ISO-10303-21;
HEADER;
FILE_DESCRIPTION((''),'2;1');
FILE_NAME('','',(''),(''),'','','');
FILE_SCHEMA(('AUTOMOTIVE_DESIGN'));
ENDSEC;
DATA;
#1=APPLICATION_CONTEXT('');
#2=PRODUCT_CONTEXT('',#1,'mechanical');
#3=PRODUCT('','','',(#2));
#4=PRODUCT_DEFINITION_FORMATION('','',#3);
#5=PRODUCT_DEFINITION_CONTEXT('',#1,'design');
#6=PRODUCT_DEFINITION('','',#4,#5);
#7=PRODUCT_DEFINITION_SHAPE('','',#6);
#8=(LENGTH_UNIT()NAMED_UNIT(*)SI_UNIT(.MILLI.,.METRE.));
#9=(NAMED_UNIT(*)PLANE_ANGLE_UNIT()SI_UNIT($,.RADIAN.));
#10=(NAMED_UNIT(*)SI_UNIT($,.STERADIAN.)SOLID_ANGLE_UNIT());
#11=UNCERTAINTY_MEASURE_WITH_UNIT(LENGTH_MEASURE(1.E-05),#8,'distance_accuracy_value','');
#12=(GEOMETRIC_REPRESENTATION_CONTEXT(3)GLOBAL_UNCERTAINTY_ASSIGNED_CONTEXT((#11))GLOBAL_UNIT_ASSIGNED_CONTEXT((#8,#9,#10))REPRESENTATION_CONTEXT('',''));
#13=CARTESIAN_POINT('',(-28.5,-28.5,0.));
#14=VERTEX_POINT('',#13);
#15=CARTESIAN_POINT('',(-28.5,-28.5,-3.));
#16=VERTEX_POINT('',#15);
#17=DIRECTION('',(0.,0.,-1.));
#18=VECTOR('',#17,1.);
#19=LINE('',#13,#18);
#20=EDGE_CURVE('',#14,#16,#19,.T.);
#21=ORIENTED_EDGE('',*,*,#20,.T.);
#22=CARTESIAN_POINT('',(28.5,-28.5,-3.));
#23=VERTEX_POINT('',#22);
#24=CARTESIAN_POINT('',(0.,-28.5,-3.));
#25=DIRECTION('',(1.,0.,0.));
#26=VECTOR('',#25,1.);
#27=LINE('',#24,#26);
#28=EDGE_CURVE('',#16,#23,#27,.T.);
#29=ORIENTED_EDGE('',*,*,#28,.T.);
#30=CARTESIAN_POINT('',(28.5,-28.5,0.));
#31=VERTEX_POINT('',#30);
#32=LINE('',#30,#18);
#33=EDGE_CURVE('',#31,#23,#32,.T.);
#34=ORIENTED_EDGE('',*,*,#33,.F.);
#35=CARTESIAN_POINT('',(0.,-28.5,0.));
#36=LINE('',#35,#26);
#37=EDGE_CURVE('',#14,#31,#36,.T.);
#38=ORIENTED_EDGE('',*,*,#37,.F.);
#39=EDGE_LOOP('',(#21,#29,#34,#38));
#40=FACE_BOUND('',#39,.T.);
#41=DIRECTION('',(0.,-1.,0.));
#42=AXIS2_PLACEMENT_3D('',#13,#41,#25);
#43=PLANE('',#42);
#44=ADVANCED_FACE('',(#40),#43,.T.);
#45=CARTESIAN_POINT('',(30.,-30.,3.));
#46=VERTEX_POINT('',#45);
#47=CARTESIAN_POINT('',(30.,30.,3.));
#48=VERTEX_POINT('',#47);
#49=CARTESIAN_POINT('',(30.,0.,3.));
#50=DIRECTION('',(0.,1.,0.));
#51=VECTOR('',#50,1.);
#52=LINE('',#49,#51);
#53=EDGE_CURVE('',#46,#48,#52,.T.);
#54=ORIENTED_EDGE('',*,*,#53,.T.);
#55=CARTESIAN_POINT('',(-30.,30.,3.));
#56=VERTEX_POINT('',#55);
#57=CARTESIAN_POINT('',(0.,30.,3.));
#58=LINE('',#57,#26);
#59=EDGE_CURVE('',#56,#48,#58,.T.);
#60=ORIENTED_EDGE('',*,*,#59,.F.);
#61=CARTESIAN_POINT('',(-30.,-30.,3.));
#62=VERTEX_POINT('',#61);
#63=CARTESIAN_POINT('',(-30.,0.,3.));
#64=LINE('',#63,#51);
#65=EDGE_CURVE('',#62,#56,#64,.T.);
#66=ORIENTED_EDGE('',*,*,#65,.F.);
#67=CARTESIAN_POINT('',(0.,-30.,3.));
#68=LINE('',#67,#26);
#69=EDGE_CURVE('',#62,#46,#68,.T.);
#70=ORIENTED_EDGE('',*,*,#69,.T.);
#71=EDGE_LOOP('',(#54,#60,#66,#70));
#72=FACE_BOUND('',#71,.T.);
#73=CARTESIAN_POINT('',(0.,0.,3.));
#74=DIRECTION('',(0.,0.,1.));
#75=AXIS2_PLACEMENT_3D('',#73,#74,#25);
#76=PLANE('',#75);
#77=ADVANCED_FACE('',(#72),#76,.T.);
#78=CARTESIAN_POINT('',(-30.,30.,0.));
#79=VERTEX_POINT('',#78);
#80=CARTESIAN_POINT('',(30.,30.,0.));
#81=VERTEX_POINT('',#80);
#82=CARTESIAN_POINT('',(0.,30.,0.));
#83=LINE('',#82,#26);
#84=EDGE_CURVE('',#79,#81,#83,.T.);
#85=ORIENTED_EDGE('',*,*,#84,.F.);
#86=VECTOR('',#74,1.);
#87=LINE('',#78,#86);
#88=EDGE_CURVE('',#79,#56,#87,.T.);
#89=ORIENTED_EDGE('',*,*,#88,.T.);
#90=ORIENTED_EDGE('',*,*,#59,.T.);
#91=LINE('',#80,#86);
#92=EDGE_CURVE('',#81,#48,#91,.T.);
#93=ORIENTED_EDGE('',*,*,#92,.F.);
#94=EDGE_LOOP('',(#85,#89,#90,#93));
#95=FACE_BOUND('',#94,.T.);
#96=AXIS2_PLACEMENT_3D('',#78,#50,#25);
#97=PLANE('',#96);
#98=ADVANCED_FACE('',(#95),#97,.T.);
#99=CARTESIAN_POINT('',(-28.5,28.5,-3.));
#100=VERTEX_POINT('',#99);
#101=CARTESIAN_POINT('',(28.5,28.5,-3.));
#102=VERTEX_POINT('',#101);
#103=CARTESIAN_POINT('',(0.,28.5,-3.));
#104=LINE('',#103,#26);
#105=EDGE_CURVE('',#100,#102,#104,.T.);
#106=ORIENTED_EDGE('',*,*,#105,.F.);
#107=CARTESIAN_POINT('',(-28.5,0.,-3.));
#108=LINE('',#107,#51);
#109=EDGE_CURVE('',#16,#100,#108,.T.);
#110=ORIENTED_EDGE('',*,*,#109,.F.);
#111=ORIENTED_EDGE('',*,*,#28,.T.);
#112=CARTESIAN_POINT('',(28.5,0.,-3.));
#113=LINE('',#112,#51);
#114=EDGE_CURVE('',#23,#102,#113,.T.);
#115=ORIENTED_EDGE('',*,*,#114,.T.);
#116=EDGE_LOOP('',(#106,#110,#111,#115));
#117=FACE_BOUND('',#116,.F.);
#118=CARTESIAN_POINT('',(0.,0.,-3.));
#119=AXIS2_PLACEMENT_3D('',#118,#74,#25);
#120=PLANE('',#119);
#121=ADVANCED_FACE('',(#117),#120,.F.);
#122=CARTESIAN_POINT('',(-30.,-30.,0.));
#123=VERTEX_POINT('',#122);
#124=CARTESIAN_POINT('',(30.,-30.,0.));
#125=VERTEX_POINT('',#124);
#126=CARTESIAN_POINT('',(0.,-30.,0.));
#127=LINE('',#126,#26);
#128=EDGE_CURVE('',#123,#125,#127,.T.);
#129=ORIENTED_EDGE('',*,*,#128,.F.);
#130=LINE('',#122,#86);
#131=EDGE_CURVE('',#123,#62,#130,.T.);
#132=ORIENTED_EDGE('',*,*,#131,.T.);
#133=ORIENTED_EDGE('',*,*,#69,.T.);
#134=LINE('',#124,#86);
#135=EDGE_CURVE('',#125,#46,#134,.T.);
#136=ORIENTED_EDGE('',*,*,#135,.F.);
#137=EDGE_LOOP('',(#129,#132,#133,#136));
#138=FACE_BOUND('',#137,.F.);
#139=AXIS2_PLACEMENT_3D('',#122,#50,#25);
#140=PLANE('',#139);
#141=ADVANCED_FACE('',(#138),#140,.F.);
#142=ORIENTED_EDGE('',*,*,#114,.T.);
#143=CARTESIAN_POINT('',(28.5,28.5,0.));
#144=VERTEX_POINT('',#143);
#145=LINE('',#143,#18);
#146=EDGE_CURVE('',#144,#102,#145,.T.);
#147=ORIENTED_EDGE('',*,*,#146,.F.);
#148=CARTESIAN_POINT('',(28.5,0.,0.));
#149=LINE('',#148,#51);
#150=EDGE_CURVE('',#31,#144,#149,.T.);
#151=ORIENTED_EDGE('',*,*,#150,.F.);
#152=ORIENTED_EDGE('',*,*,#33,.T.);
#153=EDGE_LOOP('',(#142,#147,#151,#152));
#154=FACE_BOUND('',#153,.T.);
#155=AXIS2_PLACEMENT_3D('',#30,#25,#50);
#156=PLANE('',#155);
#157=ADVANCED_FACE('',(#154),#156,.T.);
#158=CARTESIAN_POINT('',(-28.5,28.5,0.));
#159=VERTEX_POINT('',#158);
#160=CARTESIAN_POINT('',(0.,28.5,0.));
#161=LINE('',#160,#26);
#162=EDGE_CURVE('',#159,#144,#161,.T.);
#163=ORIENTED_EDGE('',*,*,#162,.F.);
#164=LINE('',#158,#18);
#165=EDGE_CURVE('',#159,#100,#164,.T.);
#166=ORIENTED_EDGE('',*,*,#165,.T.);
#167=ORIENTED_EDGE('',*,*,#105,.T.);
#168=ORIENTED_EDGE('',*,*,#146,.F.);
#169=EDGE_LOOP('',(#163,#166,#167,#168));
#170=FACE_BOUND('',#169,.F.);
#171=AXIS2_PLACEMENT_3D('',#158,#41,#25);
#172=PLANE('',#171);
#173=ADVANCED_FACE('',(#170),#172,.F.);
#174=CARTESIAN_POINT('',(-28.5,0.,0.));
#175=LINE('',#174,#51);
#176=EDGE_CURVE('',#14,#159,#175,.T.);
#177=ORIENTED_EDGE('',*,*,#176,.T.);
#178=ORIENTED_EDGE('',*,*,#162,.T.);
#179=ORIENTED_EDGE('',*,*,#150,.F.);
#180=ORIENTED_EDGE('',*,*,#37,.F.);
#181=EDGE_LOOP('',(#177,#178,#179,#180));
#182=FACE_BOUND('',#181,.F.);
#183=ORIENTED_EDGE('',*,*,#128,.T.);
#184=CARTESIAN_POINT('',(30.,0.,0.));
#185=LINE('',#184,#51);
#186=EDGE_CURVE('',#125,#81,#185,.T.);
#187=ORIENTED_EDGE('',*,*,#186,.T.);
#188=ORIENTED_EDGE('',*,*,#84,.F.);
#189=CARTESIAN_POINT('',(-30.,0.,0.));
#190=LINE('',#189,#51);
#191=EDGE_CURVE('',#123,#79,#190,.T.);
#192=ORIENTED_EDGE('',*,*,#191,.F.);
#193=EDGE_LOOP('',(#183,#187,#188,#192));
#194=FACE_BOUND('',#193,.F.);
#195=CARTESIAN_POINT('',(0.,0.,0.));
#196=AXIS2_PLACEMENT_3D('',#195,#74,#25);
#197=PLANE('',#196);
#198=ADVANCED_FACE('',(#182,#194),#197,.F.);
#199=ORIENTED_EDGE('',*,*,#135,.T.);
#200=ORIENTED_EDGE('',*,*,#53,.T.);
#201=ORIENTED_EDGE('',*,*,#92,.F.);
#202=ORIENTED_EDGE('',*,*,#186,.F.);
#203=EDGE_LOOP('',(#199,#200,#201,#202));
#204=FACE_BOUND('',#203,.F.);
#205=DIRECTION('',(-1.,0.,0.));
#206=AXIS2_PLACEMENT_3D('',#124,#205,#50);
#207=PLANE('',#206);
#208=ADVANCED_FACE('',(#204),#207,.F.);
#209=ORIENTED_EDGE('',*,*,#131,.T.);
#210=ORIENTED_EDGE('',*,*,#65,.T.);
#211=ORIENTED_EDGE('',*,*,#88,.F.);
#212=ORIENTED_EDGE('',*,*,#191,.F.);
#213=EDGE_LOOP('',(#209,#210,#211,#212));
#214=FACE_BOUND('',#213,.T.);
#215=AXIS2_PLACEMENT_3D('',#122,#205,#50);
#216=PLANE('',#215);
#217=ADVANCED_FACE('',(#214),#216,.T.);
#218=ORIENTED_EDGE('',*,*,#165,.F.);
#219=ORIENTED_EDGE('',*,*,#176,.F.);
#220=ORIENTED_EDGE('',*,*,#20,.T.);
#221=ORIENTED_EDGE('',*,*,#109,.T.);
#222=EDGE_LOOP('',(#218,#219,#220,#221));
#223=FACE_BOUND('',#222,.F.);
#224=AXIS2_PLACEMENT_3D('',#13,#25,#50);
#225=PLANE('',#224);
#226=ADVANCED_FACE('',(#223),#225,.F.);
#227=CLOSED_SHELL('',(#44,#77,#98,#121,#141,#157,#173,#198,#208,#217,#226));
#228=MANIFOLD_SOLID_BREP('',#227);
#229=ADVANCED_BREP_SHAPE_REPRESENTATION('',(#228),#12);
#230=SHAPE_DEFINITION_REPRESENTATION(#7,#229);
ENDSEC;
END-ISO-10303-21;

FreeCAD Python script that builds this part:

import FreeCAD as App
import Part
import Sketcher

V = App.Vector
Q = App.Units.Quantity

doc = App.newDocument("Part")
body = doc.addObject("PartDesign::Body", "Body")

sketch1 = doc.addObject("Sketcher::SketchObject", "Sketch")
body.addObject(sketch1)
sketch1.AttachmentSupport = (doc.XY_Plane, [""])
sketch1.MapMode = "FlatFace"
sketch1.addGeometry([
    Part.LineSegment(V(-30, 30, 0), V(-30, -30, 0)),
    Part.LineSegment(V(-30, -30, 0), V(30, -30, 0)),
    Part.LineSegment(V(30, -30, 0), V(30, 30, 0)),
    Part.LineSegment(V(30, 30, 0), V(-30, 30, 0)),
], False)
sketch1.addConstraint([
    Sketcher.Constraint("Coincident", 0, 2, 1, 1),
    Sketcher.Constraint("Coincident", 1, 2, 2, 1),
    Sketcher.Constraint("Coincident", 2, 2, 3, 1),
    Sketcher.Constraint("Coincident", 3, 2, 0, 1),
    Sketcher.Constraint("Vertical", 0),
    Sketcher.Constraint("Horizontal", 1),
    Sketcher.Constraint("Vertical", 2),
    Sketcher.Constraint("Horizontal", 3),
    Sketcher.Constraint("Symmetric", 0, 2, 2, 2, -1, 1),
    Sketcher.Constraint("Equal", 3, 0),
    Sketcher.Constraint("DistanceX", 1, 1, 1, 2, Q("60 mm")),
])
pad1 = doc.addObject("PartDesign::Pad", "Pad")
body.addObject(pad1)
pad1.Profile = sketch1
pad1.Length = 3

sketch2 = doc.addObject("Sketcher::SketchObject", "Sketch001")
body.addObject(sketch2)
sketch2.AttachmentSupport = (doc.XY_Plane, [""])
sketch2.MapMode = "FlatFace"
sketch2.addGeometry([
    Part.LineSegment(V(-28, 28, 0), V(-28, -28, 0)),
    Part.LineSegment(V(-28, -28, 0), V(28, -28, 0)),
    Part.LineSegment(V(28, -28, 0), V(28, 28, 0)),
    Part.LineSegment(V(28, 28, 0), V(-28, 28, 0)),
], False)
sketch2.addConstraint([
    Sketcher.Constraint("Coincident", 0, 2, 1, 1),
    Sketcher.Constraint("Coincident", 1, 2, 2, 1),
    Sketcher.Constraint("Coincident", 2, 2, 3, 1),
    Sketcher.Constraint("Coincident", 3, 2, 0, 1),
    Sketcher.Constraint("Vertical", 0),
    Sketcher.Constraint("Horizontal", 1),
    Sketcher.Constraint("Vertical", 2),
    Sketcher.Constraint("Horizontal", 3),
    Sketcher.Constraint("Symmetric", 0, 2, 2, 2, -1, 1),
    Sketcher.Constraint("Equal", 3, 0),
    Sketcher.Constraint("DistanceX", 1, 1, 1, 2, Q("57 mm")),
])
pad2 = doc.addObject("PartDesign::Pad", "Pad001")
body.addObject(pad2)
pad2.Profile = sketch2
pad2.Length = 3
pad2.Reversed = True

doc.recompute()
